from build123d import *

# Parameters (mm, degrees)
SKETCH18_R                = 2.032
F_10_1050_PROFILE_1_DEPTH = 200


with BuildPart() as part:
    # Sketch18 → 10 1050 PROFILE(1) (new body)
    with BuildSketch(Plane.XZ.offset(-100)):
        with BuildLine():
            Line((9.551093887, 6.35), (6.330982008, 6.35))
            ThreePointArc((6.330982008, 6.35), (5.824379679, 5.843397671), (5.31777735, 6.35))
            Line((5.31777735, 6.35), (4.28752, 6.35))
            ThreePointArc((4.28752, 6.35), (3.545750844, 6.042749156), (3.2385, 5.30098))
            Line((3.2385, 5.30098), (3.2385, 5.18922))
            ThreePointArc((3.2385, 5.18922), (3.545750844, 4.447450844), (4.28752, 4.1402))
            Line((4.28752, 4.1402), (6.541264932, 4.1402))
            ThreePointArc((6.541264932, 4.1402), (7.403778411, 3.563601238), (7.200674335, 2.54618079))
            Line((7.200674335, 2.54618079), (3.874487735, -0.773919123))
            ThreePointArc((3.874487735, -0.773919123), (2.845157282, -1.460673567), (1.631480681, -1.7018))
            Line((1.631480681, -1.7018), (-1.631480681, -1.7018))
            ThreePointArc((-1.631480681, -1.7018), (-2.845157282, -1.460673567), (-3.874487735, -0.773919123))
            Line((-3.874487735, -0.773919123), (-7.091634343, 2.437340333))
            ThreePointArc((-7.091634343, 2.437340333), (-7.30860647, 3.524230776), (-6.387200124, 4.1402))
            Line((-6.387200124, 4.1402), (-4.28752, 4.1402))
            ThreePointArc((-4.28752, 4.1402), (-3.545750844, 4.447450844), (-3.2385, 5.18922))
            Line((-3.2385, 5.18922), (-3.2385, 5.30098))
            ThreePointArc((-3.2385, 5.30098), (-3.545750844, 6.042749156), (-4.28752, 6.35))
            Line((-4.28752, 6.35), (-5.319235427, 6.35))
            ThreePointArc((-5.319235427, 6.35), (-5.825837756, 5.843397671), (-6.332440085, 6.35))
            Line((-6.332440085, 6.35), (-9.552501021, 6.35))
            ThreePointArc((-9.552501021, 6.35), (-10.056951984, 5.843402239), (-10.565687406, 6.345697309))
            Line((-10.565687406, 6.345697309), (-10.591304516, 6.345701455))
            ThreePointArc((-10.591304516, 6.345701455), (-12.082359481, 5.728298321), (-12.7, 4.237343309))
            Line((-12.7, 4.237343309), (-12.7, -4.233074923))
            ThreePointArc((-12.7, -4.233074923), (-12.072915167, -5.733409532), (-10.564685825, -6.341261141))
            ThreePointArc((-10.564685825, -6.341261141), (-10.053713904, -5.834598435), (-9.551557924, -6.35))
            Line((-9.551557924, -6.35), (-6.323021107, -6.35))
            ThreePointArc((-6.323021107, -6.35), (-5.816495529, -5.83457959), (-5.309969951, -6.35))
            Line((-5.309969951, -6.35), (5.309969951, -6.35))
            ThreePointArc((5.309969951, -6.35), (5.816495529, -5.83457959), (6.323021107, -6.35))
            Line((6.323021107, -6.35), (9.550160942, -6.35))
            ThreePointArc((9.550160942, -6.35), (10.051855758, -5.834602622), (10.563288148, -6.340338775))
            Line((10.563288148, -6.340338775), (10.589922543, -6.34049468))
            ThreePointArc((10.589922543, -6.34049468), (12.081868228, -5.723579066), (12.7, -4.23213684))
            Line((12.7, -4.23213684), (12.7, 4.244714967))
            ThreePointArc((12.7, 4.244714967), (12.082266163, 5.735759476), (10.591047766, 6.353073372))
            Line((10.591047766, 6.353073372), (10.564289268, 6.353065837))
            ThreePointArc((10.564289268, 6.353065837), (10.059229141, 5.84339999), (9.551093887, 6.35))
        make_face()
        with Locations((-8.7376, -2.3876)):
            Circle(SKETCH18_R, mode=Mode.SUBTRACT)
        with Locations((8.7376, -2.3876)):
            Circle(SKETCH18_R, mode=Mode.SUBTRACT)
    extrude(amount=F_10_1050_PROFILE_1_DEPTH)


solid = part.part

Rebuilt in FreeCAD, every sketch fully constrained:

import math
import FreeCAD as App
import Part
import Sketcher
from FreeCAD import Vector
Q = App.Units.Quantity

doc = App.newDocument("Part")
params = doc.addObject("Spreadsheet::Sheet", "Params")
for row, (alias, value) in enumerate([
    ("sketch1_diameter", "0.16 in"),
    ("sketch1_radius", "0.125 in"),
    ("pad1_length", "200 mm"),
], start=1):
    params.set(f"A{row}", alias)
    params.set(f"B{row}", "=" + value)
    params.setAlias(f"B{row}", alias)

body = doc.addObject("PartDesign::Body", "Body")

# Sketch on XZ plane
sketch1 = doc.addObject("Sketcher::SketchObject", "Sketch")
body.addObject(sketch1)
sketch1.AttachmentSupport = (doc.XZ_Plane, [""])
sketch1.MapMode = "FlatFace"
sketch1.AttachmentOffset = App.Placement(Vector(0, 0, -100), App.Rotation())
sketch1.addGeometry(Part.LineSegment(Vector(9.551, 6.35, 0), Vector(6.331, 6.35, 0)), False)
sketch1.addGeometry(Part.ArcOfCircle(Part.Circle(Vector(5.824, 6.35, 0), Vector(0, 0, 1), 0.507), math.radians(180), math.radians(360)), False)
sketch1.addGeometry(Part.LineSegment(Vector(5.318, 6.35, 0), Vector(4.288, 6.35, 0)), False)
sketch1.addGeometry(Part.ArcOfCircle(Part.Circle(Vector(4.288, 5.301, 0), Vector(0, 0, 1), 1.049), math.radians(90), math.radians(180)), False)
sketch1.addGeometry(Part.LineSegment(Vector(3.239, 5.301, 0), Vector(3.239, 5.189, 0)), False)
sketch1.addGeometry(Part.ArcOfCircle(Part.Circle(Vector(4.288, 5.189, 0), Vector(0, 0, 1), 1.049), math.radians(180), math.radians(270)), False)
sketch1.addGeometry(Part.LineSegment(Vector(4.288, 4.14, 0), Vector(6.541, 4.14, 0)), False)
sketch1.addGeometry(Part.ArcOfCircle(Part.Circle(Vector(6.541, 3.207, 0), Vector(0, 0, 1), 0.933), math.radians(-45), math.radians(90)), False)
sketch1.addGeometry(Part.LineSegment(Vector(7.201, 2.546, 0), Vector(3.874, -0.774, 0)), False)
sketch1.addGeometry(Part.ArcOfCircle(Part.Circle(Vector(1.631, 1.473, 0), Vector(0, 0, 1), 3.175), math.radians(-90), math.radians(-45)), False)
sketch1.addGeometry(Part.LineSegment(Vector(1.631, -1.702, 0), Vector(-1.631, -1.702, 0)), False)
sketch1.addGeometry(Part.ArcOfCircle(Part.Circle(Vector(-1.631, 1.473, 0), Vector(0, 0, 1), 3.175), math.radians(-135), math.radians(-90)), False)
sketch1.addGeometry(Part.LineSegment(Vector(-3.874, -0.774, 0), Vector(-7.092, 2.437, 0)), False)
sketch1.addGeometry(Part.ArcOfCircle(Part.Circle(Vector(-6.387, 3.143, 0), Vector(0, 0, 1), 0.997), math.radians(90), math.radians(225)), False)
sketch1.addGeometry(Part.LineSegment(Vector(-6.387, 4.14, 0), Vector(-4.288, 4.14, 0)), False)
sketch1.addGeometry(Part.ArcOfCircle(Part.Circle(Vector(-4.288, 5.189, 0), Vector(0, 0, 1), 1.049), math.radians(-90), math.radians(0)), False)
sketch1.addGeometry(Part.LineSegment(Vector(-3.239, 5.189, 0), Vector(-3.239, 5.301, 0)), False)
sketch1.addGeometry(Part.ArcOfCircle(Part.Circle(Vector(-4.288, 5.301, 0), Vector(0, 0, 1), 1.049), math.radians(0), math.radians(90)), False)
sketch1.addGeometry(Part.LineSegment(Vector(-4.288, 6.35, 0), Vector(-5.319, 6.35, 0)), False)
sketch1.addGeometry(Part.ArcOfCircle(Part.Circle(Vector(-5.826, 6.35, 0), Vector(0, 0, 1), 0.507), math.radians(180), math.radians(360)), False)
sketch1.addGeometry(Part.LineSegment(Vector(-6.332, 6.35, 0), Vector(-9.553, 6.35, 0)), False)
sketch1.addGeometry(Part.ArcOfCircle(Part.Circle(Vector(-10.059, 6.35, 0), Vector(0, 0, 1), 0.507), math.radians(-180), math.radians(0)), False)
sketch1.addGeometry(Part.LineSegment(Vector(-10.566, 6.346, 0), Vector(-10.591, 6.346, 0)), False)
sketch1.addGeometry(Part.ArcOfCircle(Part.Circle(Vector(-10.592, 4.237, 0), Vector(0, 0, 1), 2.108), math.radians(90), math.radians(180)), False)
sketch1.addGeometry(Part.LineSegment(Vector(-12.7, 4.237, 0), Vector(-12.7, -4.233, 0)), False)
sketch1.addGeometry(Part.ArcOfCircle(Part.Circle(Vector(-10.592, -4.233, 0), Vector(0, 0, 1), 2.108), math.radians(180), math.radians(271)), False)
sketch1.addGeometry(Part.ArcOfCircle(Part.Circle(Vector(-10.058, -6.341, 0), Vector(0, 0, 1), 0.507), math.radians(-1), math.radians(180)), False)
sketch1.addGeometry(Part.LineSegment(Vector(-9.552, -6.35, 0), Vector(-6.323, -6.35, 0)), False)
sketch1.addGeometry(Part.ArcOfCircle(Part.Circle(Vector(-5.816, -6.341, 0), Vector(0, 0, 1), 0.507), math.radians(-1), math.radians(181)), False)
sketch1.addGeometry(Part.LineSegment(Vector(-5.31, -6.35, 0), Vector(5.31, -6.35, 0)), False)
sketch1.addGeometry(Part.ArcOfCircle(Part.Circle(Vector(5.816, -6.341, 0), Vector(0, 0, 1), 0.507), math.radians(-1), math.radians(181)), False)
sketch1.addGeometry(Part.LineSegment(Vector(6.323, -6.35, 0), Vector(9.55, -6.35, 0)), False)
sketch1.addGeometry(Part.ArcOfCircle(Part.Circle(Vector(10.057, -6.341, 0), Vector(0, 0, 1), 0.507), math.radians(0), math.radians(181)), False)
sketch1.addGeometry(Part.LineSegment(Vector(10.563, -6.34, 0), Vector(10.59, -6.34, 0)), False)
sketch1.addGeometry(Part.ArcOfCircle(Part.Circle(Vector(10.592, -4.232, 0), Vector(0, 0, 1), 2.108), math.radians(-90), math.radians(0)), False)
sketch1.addGeometry(Part.LineSegment(Vector(12.7, -4.232, 0), Vector(12.7, 4.245, 0)), False)
sketch1.addGeometry(Part.ArcOfCircle(Part.Circle(Vector(10.592, 4.245, 0), Vector(0, 0, 1), 2.108), math.radians(0), math.radians(90)), False)
sketch1.addGeometry(Part.LineSegment(Vector(10.591, 6.353, 0), Vector(10.564, 6.353, 0)), False)
sketch1.addGeometry(Part.ArcOfCircle(Part.Circle(Vector(10.058, 6.35, 0), Vector(0, 0, 1), 0.507), math.radians(180), math.radians(360)), False)
sketch1.addGeometry(Part.Circle(Vector(-8.738, -2.388, 0), Vector(0, 0, 1), 2.032), False)
sketch1.addGeometry(Part.Circle(Vector(8.738, -2.388, 0), Vector(0, 0, 1), 2.032), False)
sketch1.addConstraint(Sketcher.Constraint("Coincident", 0, 2, 1, 2))
sketch1.addConstraint(Sketcher.Constraint("Coincident", 1, 1, 2, 1))
sketch1.addConstraint(Sketcher.Constraint("Tangent", 2, 2, 3, 1))
sketch1.addConstraint(Sketcher.Constraint("Tangent", 3, 2, 4, 1))
sketch1.addConstraint(Sketcher.Constraint("Tangent", 4, 2, 5, 1))
sketch1.addConstraint(Sketcher.Constraint("Tangent", 5, 2, 6, 1))
sketch1.addConstraint(Sketcher.Constraint("Tangent", 6, 2, 7, 2))
sketch1.addConstraint(Sketcher.Constraint("Tangent", 7, 1, 8, 1))
sketch1.addConstraint(Sketcher.Constraint("Tangent", 8, 2, 9, 2))
sketch1.addConstraint(Sketcher.Constraint("Tangent", 9, 1, 10, 1))
sketch1.addConstraint(Sketcher.Constraint("Tangent", 10, 2, 11, 2))
sketch1.addConstraint(Sketcher.Constraint("Tangent", 11, 1, 12, 1))
sketch1.addConstraint(Sketcher.Constraint("Tangent", 12, 2, 13, 2))
sketch1.addConstraint(Sketcher.Constraint("Tangent", 13, 1, 14, 1))
sketch1.addConstraint(Sketcher.Constraint("Tangent", 14, 2, 15, 1))
sketch1.addConstraint(Sketcher.Constraint("Tangent", 15, 2, 16, 1))
sketch1.addConstraint(Sketcher.Constraint("Tangent", 16, 2, 17, 1))
sketch1.addConstraint(Sketcher.Constraint("Tangent", 17, 2, 18, 1))
sketch1.addConstraint(Sketcher.Constraint("Coincident", 18, 2, 19, 2))
sketch1.addConstraint(Sketcher.Constraint("Coincident", 19, 1, 20, 1))
sketch1.addConstraint(Sketcher.Constraint("Coincident", 20, 2, 21, 2))
sketch1.addConstraint(Sketcher.Constraint("Coincident", 21, 1, 22, 1))
sketch1.addConstraint(Sketcher.Constraint("Tangent", 22, 2, 23, 1))
sketch1.addConstraint(Sketcher.Constraint("Coincident", 23, 2, 24, 1))
sketch1.addConstraint(Sketcher.Constraint("Tangent", 24, 2, 25, 1))
sketch1.addConstraint(Sketcher.Constraint("Coincident", 25, 2, 26, 2))
sketch1.addConstraint(Sketcher.Constraint("Coincident", 26, 1, 27, 1))
sketch1.addConstraint(Sketcher.Constraint("Coincident", 27, 2, 28, 2))
sketch1.addConstraint(Sketcher.Constraint("Coincident", 28, 1, 29, 1))
sketch1.addConstraint(Sketcher.Constraint("Coincident", 29, 2, 30, 2))
sketch1.addConstraint(Sketcher.Constraint("Coincident", 30, 1, 31, 1))
sketch1.addConstraint(Sketcher.Constraint("Coincident", 31, 2, 32, 2))
sketch1.addConstraint(Sketcher.Constraint("Coincident", 32, 1, 33, 1))
sketch1.addConstraint(Sketcher.Constraint("Coincident", 33, 2, 34, 1))
sketch1.addConstraint(Sketcher.Constraint("Tangent", 34, 2, 35, 1))
sketch1.addConstraint(Sketcher.Constraint("Tangent", 35, 2, 36, 1))
sketch1.addConstraint(Sketcher.Constraint("Tangent", 36, 2, 37, 1))
sketch1.addConstraint(Sketcher.Constraint("Coincident", 37, 2, 38, 2))
sketch1.addConstraint(Sketcher.Constraint("Coincident", 38, 1, 0, 1))
sketch1.addConstraint(Sketcher.Constraint("Horizontal", 0))
sketch1.addConstraint(Sketcher.Constraint("Horizontal", 2))
sketch1.addConstraint(Sketcher.Constraint("Vertical", 4))
sketch1.addConstraint(Sketcher.Constraint("Horizontal", 6))
sketch1.addConstraint(Sketcher.Constraint("Horizontal", 10))
sketch1.addConstraint(Sketcher.Constraint("Horizontal", 14))
sketch1.addConstraint(Sketcher.Constraint("Vertical", 16))
sketch1.addConstraint(Sketcher.Constraint("Horizontal", 18))
sketch1.addConstraint(Sketcher.Constraint("Horizontal", 20))
sketch1.addConstraint(Sketcher.Constraint("Vertical", 24))
sketch1.addConstraint(Sketcher.Constraint("Horizontal", 27))
sketch1.addConstraint(Sketcher.Constraint("Horizontal", 29))
sketch1.addConstraint(Sketcher.Constraint("Horizontal", 31))
sketch1.addConstraint(Sketcher.Constraint("Vertical", 35))
sketch1.addConstraint(Sketcher.Constraint("Equal", 3, 5))
sketch1.addConstraint(Sketcher.Constraint("Equal", 9, 11))
sketch1.addConstraint(Sketcher.Constraint("Equal", 5, 15))
sketch1.addConstraint(Sketcher.Constraint("Equal", 15, 17))
sketch1.addConstraint(Sketcher.Constraint("Equal", 1, 19))
sketch1.addConstraint(Sketcher.Constraint("Equal", 19, 21))
sketch1.addConstraint(Sketcher.Constraint("Equal", 21, 26))
sketch1.addConstraint(Sketcher.Constraint("Equal", 26, 28))
sketch1.addConstraint(Sketcher.Constraint("Equal", 28, 30))
sketch1.addConstraint(Sketcher.Constraint("Equal", 30, 32))
sketch1.addConstraint(Sketcher.Constraint("Equal", 25, 34))
sketch1.addConstraint(Sketcher.Constraint("Equal", 34, 36))
sketch1.addConstraint(Sketcher.Constraint("Equal", 32, 38))
sketch1.addConstraint(Sketcher.Constraint("Equal", 39, 40))
sketch1.addConstraint(Sketcher.Constraint("Symmetric", 5, 3, 15, 3, -2))
sketch1.addConstraint(Sketcher.Constraint("Symmetric", 28, 3, 30, 3, -2))
sketch1.addConstraint(Sketcher.Constraint("Symmetric", 39, 3, 40, 3, -2))
sketch1.addConstraint(Sketcher.Constraint("Symmetric", 8, 2, 11, 1, -2))
sketch1.addConstraint(Sketcher.Constraint("Horizontal", 3, 3, 17, 3))
sketch1.addConstraint(Sketcher.Constraint("Horizontal", 1, 3, 19, 3))
sketch1.addConstraint(Sketcher.Constraint("Horizontal", 19, 3, 21, 3))
sketch1.addConstraint(Sketcher.Constraint("Horizontal", 26, 3, 28, 3))
sketch1.addConstraint(Sketcher.Constraint("Horizontal", 30, 3, 32, 3))
sketch1.addConstraint(Sketcher.Constraint("Horizontal", 21, 3, 38, 3))
sketch1.addConstraint(Sketcher.Constraint("Horizontal", 38, 3, 0, 2))
sketch1.addConstraint(Sketcher.Constraint("Horizontal", 0, 2, 1, 1))
sketch1.addConstraint(Sketcher.Constraint("Horizontal", 18, 2, 19, 1))
sketch1.addConstraint(Sketcher.Constraint("Horizontal", 27, 2, 28, 1))
sketch1.addConstraint(Sketcher.Constraint("Horizontal", 29, 2, 30, 1))
sketch1.addConstraint(Sketcher.Constraint("Diameter", 39, Q("0.16 in")))
sketch1.addConstraint(Sketcher.Constraint("Radius", 9, Q("0.125 in")))
sketch1.addConstraint(Sketcher.Constraint("DistanceX", 23, 2, -1, 1, Q("0.5 in")))
sketch1.addConstraint(Sketcher.Constraint("DistanceX", -1, 1, 34, 2, Q("0.5 in")))
sketch1.addConstraint(Sketcher.Constraint("Radius", 3, Q("0.0413 in")))
sketch1.addConstraint(Sketcher.Constraint("DistanceY", -1, 1, 1, 3, Q("0.25 in")))
sketch1.addConstraint(Sketcher.Constraint("DistanceY", 26, 1, -1, 1, Q("0.25 in")))
sketch1.addConstraint(Sketcher.Constraint("Radius", 7, 0.933401))
sketch1.addConstraint(Sketcher.Constraint("DistanceY", 4, 2, 4, 1, Q("0.0044 in")))
sketch1.addConstraint(Sketcher.Constraint("DistanceY", -1, 1, 9, 3, Q("0.058 in")))
sketch1.addConstraint(Sketcher.Constraint("DistanceX", 39, 3, -1, 1, Q("0.344 in")))
sketch1.addConstraint(Sketcher.Constraint("DistanceY", 39, 3, -1, 1, Q("0.094 in")))
sketch1.addConstraint(Sketcher.Constraint("Radius", 23, 2.108351))
sketch1.addConstraint(Sketcher.Constraint("Radius", 25, 2.108359))
sketch1.addConstraint(Sketcher.Constraint("DistanceX", -1, 1, 3, 3, Q("0.1688 in")))
sketch1.addConstraint(Sketcher.Constraint("Radius", 1, 0.506602))
sketch1.addConstraint(Sketcher.Constraint("Radius", 13, 0.997134))
sketch1.addConstraint(Sketcher.Constraint("DistanceX", 0, 2, 0, 1, 3.220112))
sketch1.addConstraint(Sketcher.Constraint("DistanceX", 10, 2, 10, 1, 3.262961))
sketch1.addConstraint(Sketcher.Constraint("DistanceX", 14, 1, 14, 2, 2.09968))
sketch1.addConstraint(Sketcher.Constraint("DistanceX", 20, 2, 20, 1, 3.220061))
sketch1.addConstraint(Sketcher.Constraint("DistanceX", 29, 1, 29, 2, 10.61994))
sketch1.addConstraint(Sketcher.Constraint("DistanceX", 31, 1, 31, 2, 3.22714))
sketch1.addConstraint(Sketcher.Constraint("DistanceY", 24, 2, 24, 1, 8.470418))
sketch1.addConstraint(Sketcher.Constraint("DistanceY", 35, 1, 35, 2, 8.476852))
sketch1.addConstraint(Sketcher.Constraint("DistanceX", 20, 2, -1, 1, 9.552501))
sketch1.addConstraint(Sketcher.Constraint("DistanceY", -1, 1, 22, 2, 6.345701))
sketch1.addConstraint(Sketcher.Constraint("Distance", 37, 0.026758))
sketch1.addConstraint(Sketcher.Constraint("DistanceX", 2, 2, 2, 1, 1.030257))
sketch1.addConstraint(Sketcher.Constraint("DistanceX", 27, 1, 27, 2, 3.228537))
sketch1.addConstraint(Sketcher.Constraint("DistanceY", 26, 3, -1, 1, 6.341182))
sketch1.addConstraint(Sketcher.Constraint("DistanceY", 25, 2, -1, 1, 6.341261))
sketch1.addConstraint(Sketcher.Constraint("DistanceY", 32, 1, -1, 1, 6.340339))
sketch1.addConstraint(Sketcher.Constraint("Distance", 22, 0.025617))
sketch1.addConstraint(Sketcher.Constraint("Distance", 33, 0.026635))
sketch1.addConstraint(Sketcher.Constraint("DistanceY", 34, 3, -1, 1, 4.232137))
sketch1.setExpression("Constraints[82]", "Params.sketch1_diameter")
sketch1.setExpression("Constraints[83]", "Params.sketch1_radius")
pad1 = doc.addObject("PartDesign::Pad", "Pad")
body.addObject(pad1)
pad1.Profile = sketch1
pad1.setExpression("Length", "Params.pad1_length")

doc.recompute()
